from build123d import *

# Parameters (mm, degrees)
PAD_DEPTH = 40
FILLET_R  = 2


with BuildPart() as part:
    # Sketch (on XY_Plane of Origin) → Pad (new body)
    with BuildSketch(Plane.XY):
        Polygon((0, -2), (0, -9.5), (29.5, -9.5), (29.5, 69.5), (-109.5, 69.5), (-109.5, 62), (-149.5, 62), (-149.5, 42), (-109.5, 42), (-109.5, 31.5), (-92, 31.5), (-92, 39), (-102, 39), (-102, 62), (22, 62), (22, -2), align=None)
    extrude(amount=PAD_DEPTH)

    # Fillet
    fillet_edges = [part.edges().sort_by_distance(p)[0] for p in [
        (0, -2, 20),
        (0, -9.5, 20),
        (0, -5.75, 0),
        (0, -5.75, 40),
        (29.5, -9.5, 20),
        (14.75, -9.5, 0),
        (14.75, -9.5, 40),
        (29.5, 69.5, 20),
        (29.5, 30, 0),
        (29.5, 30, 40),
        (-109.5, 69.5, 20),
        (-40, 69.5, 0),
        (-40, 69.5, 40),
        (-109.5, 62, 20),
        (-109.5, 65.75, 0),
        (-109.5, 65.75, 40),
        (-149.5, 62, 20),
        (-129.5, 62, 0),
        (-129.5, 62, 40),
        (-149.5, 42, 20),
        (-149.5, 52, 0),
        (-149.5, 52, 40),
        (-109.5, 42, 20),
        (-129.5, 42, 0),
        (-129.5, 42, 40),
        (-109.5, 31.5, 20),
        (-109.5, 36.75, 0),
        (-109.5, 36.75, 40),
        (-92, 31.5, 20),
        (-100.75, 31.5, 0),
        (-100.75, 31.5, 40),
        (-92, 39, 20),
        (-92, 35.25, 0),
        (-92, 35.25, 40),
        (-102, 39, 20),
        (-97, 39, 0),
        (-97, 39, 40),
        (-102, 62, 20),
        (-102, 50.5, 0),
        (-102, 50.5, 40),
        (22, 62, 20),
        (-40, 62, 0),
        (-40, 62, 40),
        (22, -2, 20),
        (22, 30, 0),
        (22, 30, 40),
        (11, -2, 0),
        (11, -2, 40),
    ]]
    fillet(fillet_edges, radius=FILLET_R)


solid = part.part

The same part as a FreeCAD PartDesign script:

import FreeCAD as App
import Part
import Sketcher
from FreeCAD import Vector
Q = App.Units.Quantity

doc = App.newDocument("Part")
body = doc.addObject("PartDesign::Body", "Body")

# Sketch on XY plane
sketch1 = doc.addObject("Sketcher::SketchObject", "Sketch")
body.addObject(sketch1)
sketch1.AttachmentSupport = (doc.XY_Plane, [""])
sketch1.MapMode = "FlatFace"
sketch1.addGeometry(Part.LineSegment(Vector(0, -2, 0), Vector(0, -10, 0)), False)
sketch1.addGeometry(Part.LineSegment(Vector(0, -10, 0), Vector(30, -10, 0)), False)
sketch1.addGeometry(Part.LineSegment(Vector(30, -10, 0), Vector(30, 70, 0)), False)
sketch1.addGeometry(Part.LineSegment(Vector(30, 70, 0), Vector(-110, 70, 0)), False)
sketch1.addGeometry(Part.LineSegment(Vector(-110, 70, 0), Vector(-110, 62, 0)), False)
sketch1.addGeometry(Part.LineSegment(Vector(-110, 62, 0), Vector(-150, 62, 0)), False)
sketch1.addGeometry(Part.LineSegment(Vector(-150, 62, 0), Vector(-150, 42, 0)), False)
sketch1.addGeometry(Part.LineSegment(Vector(-150, 42, 0), Vector(-110, 42, 0)), False)
sketch1.addGeometry(Part.LineSegment(Vector(-110, 42, 0), Vector(-110, 32, 0)), False)
sketch1.addGeometry(Part.LineSegment(Vector(-110, 32, 0), Vector(-92, 32, 0)), False)
sketch1.addGeometry(Part.LineSegment(Vector(-92, 32, 0), Vector(-92, 39, 0)), False)
sketch1.addGeometry(Part.LineSegment(Vector(-92, 39, 0), Vector(-102, 39, 0)), False)
sketch1.addGeometry(Part.LineSegment(Vector(-102, 39, 0), Vector(-102, 62, 0)), False)
sketch1.addGeometry(Part.LineSegment(Vector(-102, 62, 0), Vector(22, 62, 0)), False)
sketch1.addGeometry(Part.LineSegment(Vector(22, 62, 0), Vector(22, -2, 0)), False)
sketch1.addGeometry(Part.LineSegment(Vector(22, -2, 0), Vector(0, -2, 0)), False)
sketch1.addConstraint(Sketcher.Constraint("Coincident", 0, 2, 1, 1))
sketch1.addConstraint(Sketcher.Constraint("Coincident", 1, 2, 2, 1))
sketch1.addConstraint(Sketcher.Constraint("Coincident", 2, 2, 3, 1))
sketch1.addConstraint(Sketcher.Constraint("Coincident", 3, 2, 4, 1))
sketch1.addConstraint(Sketcher.Constraint("Coincident", 4, 2, 5, 1))
sketch1.addConstraint(Sketcher.Constraint("Coincident", 5, 2, 6, 1))
sketch1.addConstraint(Sketcher.Constraint("Coincident", 6, 2, 7, 1))
sketch1.addConstraint(Sketcher.Constraint("Coincident", 7, 2, 8, 1))
sketch1.addConstraint(Sketcher.Constraint("Coincident", 8, 2, 9, 1))
sketch1.addConstraint(Sketcher.Constraint("Coincident", 9, 2, 10, 1))
sketch1.addConstraint(Sketcher.Constraint("Coincident", 10, 2, 11, 1))
sketch1.addConstraint(Sketcher.Constraint("Coincident", 11, 2, 12, 1))
sketch1.addConstraint(Sketcher.Constraint("Coincident", 12, 2, 13, 1))
sketch1.addConstraint(Sketcher.Constraint("Coincident", 13, 2, 14, 1))
sketch1.addConstraint(Sketcher.Constraint("Coincident", 14, 2, 15, 1))
sketch1.addConstraint(Sketcher.Constraint("Coincident", 15, 2, 0, 1))
sketch1.addConstraint(Sketcher.Constraint("Vertical", 0))
sketch1.addConstraint(Sketcher.Constraint("Horizontal", 1))
sketch1.addConstraint(Sketcher.Constraint("Vertical", 2))
sketch1.addConstraint(Sketcher.Constraint("Horizontal", 3))
sketch1.addConstraint(Sketcher.Constraint("Vertical", 4))
sketch1.addConstraint(Sketcher.Constraint("Horizontal", 5))
sketch1.addConstraint(Sketcher.Constraint("Vertical", 6))
sketch1.addConstraint(Sketcher.Constraint("Horizontal", 7))
sketch1.addConstraint(Sketcher.Constraint("Vertical", 8))
sketch1.addConstraint(Sketcher.Constraint("Horizontal", 9))
sketch1.addConstraint(Sketcher.Constraint("Vertical", 10))
sketch1.addConstraint(Sketcher.Constraint("Horizontal", 11))
sketch1.addConstraint(Sketcher.Constraint("Vertical", 12))
sketch1.addConstraint(Sketcher.Constraint("Horizontal", 13))
sketch1.addConstraint(Sketcher.Constraint("Vertical", 14))
sketch1.addConstraint(Sketcher.Constraint("Horizontal", 15))
sketch1.addConstraint(Sketcher.Constraint("PointOnObject", 0, 2, -2))
sketch1.addConstraint(Sketcher.Constraint("Horizontal", 5, 2, 12, 2))
sketch1.addConstraint(Sketcher.Constraint("Vertical", 4, 2, 7, 2))
sketch1.addConstraint(Sketcher.Constraint("Equal", 0, 4))
sketch1.addConstraint(Sketcher.Constraint("Equal", 4, 10))
sketch1.addConstraint(Sketcher.Constraint("DistanceX", 3, 2, 3, 1, Q("139 mm")))
sketch1.addConstraint(Sketcher.Constraint("DistanceX", 5, 2, 5, 1, Q("40 mm")))
sketch1.addConstraint(Sketcher.Constraint("DistanceX", 11, 2, 11, 1, Q("10 mm")))
sketch1.addConstraint(Sketcher.Constraint("DistanceX", 13, 1, 13, 2, Q("124 mm")))
sketch1.addConstraint(Sketcher.Constraint("DistanceX", 15, 2, 15, 1, Q("22 mm")))
sketch1.addConstraint(Sketcher.Constraint("DistanceY", 2, 1, 2, 2, Q("79 mm")))
sketch1.addConstraint(Sketcher.Constraint("DistanceY", 6, 2, 6, 1, Q("20 mm")))
sketch1.addConstraint(Sketcher.Constraint("DistanceY", 12, 1, 12, 2, Q("23 mm")))
sketch1.addConstraint(Sketcher.Constraint("DistanceY", 14, 2, 14, 1, Q("64 mm")))
sketch1.addConstraint(Sketcher.Constraint("DistanceX", 1, 1, 1, 2, Q("29.5 mm")))
sketch1.addConstraint(Sketcher.Constraint("DistanceY", -1, 1, 4, 2, Q("62 mm")))
pad1 = doc.addObject("PartDesign::Pad", "Pad")
body.addObject(pad1)
pad1.Profile = sketch1
pad1.Length = 40
doc.recompute()

fillet = doc.addObject("PartDesign::Fillet", "Fillet")
body.addObject(fillet)
fillet.Base = (pad1, ["Edge1"])
fillet.UseAllEdges = True
fillet.Radius = 2

doc.recompute()
